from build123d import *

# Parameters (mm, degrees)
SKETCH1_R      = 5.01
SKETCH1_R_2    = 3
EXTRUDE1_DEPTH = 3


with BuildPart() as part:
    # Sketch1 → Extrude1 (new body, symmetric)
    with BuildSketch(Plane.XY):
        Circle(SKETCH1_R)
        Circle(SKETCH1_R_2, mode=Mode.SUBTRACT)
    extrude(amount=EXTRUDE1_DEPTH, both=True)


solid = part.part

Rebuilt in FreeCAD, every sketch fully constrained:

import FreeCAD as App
import Part
import Sketcher

V = App.Vector
Q = App.Units.Quantity

doc = App.newDocument("Part")
body = doc.addObject("PartDesign::Body", "Body")

sketch1 = doc.addObject("Sketcher::SketchObject", "Sketch")
body.addObject(sketch1)
sketch1.AttachmentSupport = (doc.XY_Plane, [""])
sketch1.MapMode = "FlatFace"
sketch1.addGeometry([
    Part.Circle(V(0, 0, 0), V(0, 0, 1), 5.01),
    Part.Circle(V(0, 0, 0), V(0, 0, 1), 3),
], False)
sketch1.addConstraint([
    Sketcher.Constraint("Coincident", 0, 3, -1, 1),
    Sketcher.Constraint("Coincident", 1, 3, -1, 1),
    Sketcher.Constraint("Diameter", 1, Q("6 mm")),
    Sketcher.Constraint("Diameter", 0, Q("10.02 mm")),
])
pad1 = doc.addObject("PartDesign::Pad", "Pad")
body.addObject(pad1)
pad1.Profile = sketch1
pad1.Length = 6
pad1.Midplane = True

doc.recompute()
